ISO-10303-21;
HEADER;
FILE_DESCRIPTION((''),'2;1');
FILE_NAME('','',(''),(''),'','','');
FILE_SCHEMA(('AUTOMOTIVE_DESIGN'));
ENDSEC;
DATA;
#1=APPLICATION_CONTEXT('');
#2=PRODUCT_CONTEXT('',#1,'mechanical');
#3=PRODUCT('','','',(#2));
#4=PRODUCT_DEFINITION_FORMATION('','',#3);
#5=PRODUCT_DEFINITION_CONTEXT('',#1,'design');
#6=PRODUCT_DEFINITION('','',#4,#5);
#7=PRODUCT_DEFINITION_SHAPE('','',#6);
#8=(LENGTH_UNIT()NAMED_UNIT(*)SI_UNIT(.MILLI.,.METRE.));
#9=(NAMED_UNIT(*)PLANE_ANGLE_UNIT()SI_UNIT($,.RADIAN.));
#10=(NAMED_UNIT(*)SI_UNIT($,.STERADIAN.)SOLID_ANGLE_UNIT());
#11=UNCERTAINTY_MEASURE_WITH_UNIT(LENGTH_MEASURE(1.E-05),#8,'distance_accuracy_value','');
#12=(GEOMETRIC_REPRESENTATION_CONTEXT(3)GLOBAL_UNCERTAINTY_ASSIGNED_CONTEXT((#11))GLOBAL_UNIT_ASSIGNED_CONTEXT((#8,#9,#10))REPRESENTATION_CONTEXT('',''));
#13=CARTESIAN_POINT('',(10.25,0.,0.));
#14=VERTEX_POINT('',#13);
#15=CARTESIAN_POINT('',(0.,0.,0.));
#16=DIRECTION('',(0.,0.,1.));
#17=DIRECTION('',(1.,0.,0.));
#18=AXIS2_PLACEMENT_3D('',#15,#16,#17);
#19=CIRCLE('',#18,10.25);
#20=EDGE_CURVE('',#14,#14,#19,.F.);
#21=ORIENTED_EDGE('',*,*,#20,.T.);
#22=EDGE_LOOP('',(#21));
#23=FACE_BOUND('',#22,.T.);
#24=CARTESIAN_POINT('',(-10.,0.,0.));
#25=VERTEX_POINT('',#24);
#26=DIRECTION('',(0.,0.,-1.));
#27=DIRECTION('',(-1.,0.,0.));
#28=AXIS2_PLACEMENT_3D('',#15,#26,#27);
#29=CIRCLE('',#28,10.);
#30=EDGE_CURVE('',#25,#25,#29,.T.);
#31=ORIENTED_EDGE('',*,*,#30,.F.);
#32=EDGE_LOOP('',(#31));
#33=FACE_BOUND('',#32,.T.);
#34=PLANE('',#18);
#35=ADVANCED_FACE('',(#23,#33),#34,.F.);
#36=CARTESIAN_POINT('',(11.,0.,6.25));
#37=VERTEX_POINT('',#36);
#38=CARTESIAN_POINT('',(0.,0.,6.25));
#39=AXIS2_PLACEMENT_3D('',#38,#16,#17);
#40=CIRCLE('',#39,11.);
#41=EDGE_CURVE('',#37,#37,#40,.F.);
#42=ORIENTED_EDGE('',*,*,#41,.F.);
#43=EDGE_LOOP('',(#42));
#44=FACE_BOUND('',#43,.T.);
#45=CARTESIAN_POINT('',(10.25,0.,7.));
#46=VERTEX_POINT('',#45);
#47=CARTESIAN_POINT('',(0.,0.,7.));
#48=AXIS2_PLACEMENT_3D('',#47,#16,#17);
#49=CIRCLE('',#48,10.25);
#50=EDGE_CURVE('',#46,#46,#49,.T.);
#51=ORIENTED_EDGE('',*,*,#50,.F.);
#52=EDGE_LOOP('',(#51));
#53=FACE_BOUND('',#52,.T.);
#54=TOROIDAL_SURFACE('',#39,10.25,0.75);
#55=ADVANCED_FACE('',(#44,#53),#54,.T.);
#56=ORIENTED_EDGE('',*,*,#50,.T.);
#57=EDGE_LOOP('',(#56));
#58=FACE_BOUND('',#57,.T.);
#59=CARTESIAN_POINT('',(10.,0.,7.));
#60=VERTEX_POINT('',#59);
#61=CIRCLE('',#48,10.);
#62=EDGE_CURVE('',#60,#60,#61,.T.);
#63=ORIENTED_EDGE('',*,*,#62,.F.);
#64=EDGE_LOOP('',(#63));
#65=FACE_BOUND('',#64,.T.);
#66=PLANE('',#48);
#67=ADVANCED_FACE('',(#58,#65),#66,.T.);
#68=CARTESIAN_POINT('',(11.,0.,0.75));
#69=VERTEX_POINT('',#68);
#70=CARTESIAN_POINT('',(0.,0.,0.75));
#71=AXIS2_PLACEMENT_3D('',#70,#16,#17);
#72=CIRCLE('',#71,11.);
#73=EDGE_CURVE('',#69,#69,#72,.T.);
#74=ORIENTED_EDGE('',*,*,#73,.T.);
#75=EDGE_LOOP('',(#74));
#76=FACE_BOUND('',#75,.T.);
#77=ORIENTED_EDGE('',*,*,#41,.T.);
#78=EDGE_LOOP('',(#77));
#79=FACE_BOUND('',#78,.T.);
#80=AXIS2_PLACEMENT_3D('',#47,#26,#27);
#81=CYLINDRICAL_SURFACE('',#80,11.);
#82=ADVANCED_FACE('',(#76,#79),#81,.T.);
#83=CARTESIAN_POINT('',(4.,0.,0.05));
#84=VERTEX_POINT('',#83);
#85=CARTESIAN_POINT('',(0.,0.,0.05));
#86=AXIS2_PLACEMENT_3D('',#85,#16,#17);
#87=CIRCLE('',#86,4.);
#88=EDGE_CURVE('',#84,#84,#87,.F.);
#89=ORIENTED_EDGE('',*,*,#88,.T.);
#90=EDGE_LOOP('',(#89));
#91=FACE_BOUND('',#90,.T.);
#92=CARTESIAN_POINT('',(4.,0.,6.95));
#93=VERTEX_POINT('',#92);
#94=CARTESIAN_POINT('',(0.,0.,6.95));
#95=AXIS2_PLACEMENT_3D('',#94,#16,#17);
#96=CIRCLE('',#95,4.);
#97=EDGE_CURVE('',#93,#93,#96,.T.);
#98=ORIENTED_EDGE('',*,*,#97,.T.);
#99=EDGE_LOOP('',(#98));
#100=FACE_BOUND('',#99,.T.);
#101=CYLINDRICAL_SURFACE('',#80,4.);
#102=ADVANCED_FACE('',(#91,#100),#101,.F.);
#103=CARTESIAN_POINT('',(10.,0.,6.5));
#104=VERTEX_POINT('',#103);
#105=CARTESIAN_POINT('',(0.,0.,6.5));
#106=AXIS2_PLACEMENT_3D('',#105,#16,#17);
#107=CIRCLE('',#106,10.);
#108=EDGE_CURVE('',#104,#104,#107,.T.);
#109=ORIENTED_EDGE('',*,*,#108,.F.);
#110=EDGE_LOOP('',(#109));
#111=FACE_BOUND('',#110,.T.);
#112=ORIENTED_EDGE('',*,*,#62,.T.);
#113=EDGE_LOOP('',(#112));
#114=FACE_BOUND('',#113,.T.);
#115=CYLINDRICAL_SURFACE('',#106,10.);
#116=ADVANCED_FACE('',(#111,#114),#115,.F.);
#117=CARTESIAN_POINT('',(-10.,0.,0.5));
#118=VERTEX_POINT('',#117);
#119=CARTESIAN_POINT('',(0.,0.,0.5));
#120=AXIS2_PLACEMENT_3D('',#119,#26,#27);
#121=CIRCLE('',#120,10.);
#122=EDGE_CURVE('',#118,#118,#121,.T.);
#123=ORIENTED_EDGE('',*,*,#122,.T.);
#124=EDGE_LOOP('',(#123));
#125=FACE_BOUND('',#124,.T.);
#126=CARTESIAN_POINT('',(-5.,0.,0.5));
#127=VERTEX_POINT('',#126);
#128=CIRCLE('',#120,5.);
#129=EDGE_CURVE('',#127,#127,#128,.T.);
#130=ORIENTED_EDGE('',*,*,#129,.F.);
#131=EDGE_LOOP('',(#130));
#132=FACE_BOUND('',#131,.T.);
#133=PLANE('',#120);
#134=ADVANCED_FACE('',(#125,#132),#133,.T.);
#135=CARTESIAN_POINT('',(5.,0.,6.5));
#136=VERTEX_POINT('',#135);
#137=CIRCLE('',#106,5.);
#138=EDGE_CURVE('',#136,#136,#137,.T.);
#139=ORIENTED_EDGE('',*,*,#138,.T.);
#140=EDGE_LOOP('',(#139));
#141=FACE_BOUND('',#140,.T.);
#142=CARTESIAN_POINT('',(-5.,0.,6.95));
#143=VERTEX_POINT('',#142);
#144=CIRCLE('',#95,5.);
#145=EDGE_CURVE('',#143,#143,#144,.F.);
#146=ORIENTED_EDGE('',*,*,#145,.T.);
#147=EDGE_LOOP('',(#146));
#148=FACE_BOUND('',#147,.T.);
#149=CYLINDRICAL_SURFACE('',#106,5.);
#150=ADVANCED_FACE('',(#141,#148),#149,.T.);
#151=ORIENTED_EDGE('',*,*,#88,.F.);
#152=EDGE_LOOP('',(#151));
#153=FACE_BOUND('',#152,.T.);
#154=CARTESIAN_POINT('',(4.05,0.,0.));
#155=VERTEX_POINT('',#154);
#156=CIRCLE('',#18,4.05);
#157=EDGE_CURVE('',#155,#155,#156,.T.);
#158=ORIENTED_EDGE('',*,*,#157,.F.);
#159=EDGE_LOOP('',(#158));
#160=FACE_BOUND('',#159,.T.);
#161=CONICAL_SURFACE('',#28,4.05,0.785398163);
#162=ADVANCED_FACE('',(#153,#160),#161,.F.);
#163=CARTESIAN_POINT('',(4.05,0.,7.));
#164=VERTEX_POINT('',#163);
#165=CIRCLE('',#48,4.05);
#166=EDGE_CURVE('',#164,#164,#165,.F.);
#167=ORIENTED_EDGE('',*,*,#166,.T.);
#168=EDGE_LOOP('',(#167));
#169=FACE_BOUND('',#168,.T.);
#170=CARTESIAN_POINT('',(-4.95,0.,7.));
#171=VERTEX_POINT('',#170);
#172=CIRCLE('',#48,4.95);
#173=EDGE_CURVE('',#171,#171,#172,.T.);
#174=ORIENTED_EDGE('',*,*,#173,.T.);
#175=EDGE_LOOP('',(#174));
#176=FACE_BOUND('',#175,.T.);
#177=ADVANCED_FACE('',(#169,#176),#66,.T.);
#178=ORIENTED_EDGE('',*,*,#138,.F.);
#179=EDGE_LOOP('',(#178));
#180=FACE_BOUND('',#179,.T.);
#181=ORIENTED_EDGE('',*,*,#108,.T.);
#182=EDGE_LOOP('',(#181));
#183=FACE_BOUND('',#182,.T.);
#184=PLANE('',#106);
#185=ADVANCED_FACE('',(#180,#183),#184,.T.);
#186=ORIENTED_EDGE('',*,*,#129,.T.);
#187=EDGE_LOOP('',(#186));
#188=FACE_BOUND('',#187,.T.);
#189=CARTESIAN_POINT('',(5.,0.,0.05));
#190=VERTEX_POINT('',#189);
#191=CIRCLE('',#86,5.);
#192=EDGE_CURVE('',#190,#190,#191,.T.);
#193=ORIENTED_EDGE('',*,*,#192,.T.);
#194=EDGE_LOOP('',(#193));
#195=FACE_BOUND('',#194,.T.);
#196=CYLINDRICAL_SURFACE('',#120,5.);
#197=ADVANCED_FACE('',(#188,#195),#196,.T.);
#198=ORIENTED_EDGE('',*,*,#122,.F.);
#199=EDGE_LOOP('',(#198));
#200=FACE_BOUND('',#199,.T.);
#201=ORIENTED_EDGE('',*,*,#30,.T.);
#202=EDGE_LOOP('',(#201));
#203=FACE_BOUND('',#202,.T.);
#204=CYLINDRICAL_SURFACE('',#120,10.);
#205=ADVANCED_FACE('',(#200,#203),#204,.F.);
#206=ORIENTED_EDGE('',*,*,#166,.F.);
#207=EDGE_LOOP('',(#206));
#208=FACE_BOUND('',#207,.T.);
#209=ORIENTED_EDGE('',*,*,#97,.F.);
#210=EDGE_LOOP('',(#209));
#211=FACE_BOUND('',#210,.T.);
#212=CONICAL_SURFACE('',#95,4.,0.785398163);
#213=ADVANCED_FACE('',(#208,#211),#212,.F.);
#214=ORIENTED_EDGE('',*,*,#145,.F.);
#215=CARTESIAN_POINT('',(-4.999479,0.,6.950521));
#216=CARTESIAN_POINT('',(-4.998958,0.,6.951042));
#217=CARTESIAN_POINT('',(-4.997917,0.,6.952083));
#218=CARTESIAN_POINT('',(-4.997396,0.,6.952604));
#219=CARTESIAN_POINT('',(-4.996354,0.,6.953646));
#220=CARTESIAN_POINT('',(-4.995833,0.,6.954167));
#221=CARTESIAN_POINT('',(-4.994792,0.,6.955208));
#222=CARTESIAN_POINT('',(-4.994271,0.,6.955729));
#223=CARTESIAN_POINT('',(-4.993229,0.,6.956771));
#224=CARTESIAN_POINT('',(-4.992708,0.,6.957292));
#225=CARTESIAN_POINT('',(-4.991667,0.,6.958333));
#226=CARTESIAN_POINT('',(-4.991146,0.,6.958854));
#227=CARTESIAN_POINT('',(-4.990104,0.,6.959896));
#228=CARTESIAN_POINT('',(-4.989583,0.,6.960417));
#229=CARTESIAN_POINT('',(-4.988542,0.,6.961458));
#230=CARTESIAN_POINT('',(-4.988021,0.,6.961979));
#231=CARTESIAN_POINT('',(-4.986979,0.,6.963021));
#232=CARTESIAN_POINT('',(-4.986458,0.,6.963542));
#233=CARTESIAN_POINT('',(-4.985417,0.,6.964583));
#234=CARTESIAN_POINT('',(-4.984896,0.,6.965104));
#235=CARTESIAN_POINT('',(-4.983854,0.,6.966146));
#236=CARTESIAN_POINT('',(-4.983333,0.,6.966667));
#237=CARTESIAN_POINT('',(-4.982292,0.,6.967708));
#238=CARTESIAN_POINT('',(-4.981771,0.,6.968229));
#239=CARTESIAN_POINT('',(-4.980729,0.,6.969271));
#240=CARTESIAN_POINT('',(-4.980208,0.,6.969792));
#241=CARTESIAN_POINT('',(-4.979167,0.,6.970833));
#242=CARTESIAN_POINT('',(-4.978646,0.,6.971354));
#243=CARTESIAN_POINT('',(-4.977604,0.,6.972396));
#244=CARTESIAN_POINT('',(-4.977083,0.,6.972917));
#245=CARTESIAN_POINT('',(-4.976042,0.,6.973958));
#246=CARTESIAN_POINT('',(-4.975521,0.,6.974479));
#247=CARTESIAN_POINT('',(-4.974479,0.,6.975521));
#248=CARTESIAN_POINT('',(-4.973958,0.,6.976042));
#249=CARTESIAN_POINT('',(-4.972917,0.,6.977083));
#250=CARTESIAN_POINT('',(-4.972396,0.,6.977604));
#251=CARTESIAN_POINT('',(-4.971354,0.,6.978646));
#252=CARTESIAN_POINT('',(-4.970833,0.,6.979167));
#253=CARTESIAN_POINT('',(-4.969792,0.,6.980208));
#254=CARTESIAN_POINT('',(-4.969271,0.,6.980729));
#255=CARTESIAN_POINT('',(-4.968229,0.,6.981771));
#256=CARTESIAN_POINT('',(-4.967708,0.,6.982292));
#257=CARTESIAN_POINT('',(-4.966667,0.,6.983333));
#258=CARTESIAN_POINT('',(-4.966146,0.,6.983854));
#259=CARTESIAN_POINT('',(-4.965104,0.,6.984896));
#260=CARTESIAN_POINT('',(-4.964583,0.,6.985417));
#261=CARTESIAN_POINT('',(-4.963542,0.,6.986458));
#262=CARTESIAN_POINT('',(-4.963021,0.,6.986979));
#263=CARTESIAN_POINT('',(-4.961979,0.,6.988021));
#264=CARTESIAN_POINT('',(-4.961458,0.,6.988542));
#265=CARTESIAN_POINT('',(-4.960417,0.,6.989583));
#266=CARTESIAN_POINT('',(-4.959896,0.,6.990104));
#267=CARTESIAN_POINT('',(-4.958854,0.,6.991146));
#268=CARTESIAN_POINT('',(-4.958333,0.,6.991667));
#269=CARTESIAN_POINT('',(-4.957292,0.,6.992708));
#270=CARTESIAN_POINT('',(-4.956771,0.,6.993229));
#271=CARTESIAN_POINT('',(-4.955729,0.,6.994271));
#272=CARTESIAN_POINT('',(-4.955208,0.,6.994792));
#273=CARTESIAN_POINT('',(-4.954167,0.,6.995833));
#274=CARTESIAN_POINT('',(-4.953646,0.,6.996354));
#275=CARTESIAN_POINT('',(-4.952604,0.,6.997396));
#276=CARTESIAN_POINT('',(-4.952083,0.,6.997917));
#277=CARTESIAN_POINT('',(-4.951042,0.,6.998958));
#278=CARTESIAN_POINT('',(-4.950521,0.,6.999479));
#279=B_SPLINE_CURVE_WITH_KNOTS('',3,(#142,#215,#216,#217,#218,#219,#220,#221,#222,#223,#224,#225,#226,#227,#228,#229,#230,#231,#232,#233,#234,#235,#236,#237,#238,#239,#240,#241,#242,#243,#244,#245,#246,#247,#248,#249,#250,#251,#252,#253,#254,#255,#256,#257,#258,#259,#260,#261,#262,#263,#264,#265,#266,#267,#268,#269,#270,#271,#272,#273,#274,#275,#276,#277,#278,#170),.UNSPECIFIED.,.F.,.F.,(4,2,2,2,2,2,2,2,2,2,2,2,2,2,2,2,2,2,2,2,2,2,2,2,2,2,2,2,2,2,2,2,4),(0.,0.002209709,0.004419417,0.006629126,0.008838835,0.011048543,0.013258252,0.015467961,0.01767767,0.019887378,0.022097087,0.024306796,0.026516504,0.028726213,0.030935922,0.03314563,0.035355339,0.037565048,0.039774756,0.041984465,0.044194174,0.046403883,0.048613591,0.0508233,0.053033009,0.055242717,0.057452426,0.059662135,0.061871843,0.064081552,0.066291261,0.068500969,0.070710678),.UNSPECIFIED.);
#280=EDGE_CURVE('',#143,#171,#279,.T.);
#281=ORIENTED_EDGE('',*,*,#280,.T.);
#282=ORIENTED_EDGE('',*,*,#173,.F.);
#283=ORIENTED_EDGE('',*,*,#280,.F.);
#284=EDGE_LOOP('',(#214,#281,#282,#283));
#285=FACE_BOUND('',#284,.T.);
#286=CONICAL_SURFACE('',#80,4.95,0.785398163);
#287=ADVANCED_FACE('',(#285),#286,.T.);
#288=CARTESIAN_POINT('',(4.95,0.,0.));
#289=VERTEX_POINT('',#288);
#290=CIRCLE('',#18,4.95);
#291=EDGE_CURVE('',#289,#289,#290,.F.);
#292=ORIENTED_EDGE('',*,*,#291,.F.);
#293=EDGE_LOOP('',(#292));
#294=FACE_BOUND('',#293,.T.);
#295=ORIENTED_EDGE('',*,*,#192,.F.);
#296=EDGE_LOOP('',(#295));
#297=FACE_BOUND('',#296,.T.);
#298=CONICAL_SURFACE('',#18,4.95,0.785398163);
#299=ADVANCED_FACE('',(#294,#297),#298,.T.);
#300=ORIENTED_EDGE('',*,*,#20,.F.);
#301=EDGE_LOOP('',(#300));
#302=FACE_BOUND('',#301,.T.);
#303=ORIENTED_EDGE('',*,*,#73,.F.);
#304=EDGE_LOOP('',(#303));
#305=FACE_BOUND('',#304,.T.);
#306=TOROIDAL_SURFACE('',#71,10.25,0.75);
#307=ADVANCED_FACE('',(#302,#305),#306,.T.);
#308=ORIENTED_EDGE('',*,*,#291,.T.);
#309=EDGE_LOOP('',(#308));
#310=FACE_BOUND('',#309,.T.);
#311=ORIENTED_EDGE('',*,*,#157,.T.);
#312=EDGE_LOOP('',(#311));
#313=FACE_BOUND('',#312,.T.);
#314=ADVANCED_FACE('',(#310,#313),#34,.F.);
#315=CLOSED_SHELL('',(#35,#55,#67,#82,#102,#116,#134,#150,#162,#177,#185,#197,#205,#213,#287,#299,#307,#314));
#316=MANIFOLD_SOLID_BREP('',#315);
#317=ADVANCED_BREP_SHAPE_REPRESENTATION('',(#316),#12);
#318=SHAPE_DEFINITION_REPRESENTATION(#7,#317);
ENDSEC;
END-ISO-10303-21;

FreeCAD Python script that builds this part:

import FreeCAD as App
import Part
import Sketcher

V = App.Vector


def edges_at(feature, points):
    """Names of the edges that pass closest to the given points."""
    edges = feature.Shape.Edges
    near = lambda p: min(range(len(edges)), key=lambda i: edges[i].distToShape(Part.Vertex(*p))[0])
    return sorted({f"Edge{near(p) + 1}" for p in points})

doc = App.newDocument("Part")
body = doc.addObject("PartDesign::Body", "Body")

sketch1 = body.newObject("Sketcher::SketchObject", "Sketch")
sketch1.AttachmentSupport = (doc.getObject("XY_Plane"), [""])
sketch1.MapMode = "FlatFace"
sketch1.addGeometry(Part.Circle(V(0, 0, 0), V(0, 0, 1), 11), False)
sketch1.addGeometry(Part.Circle(V(0, 0, 0), V(0, 0, 1), 4), False)
sketch1.addConstraint(Sketcher.Constraint("Coincident", 0, 3, -1, 1))
sketch1.addConstraint(Sketcher.Constraint("Coincident", 1, 3, -1, 1))
sketch1.addConstraint(Sketcher.Constraint("Diameter", 0, 22.0))
sketch1.addConstraint(Sketcher.Constraint("Diameter", 1, 8.0))
pad1 = body.newObject("PartDesign::Pad", "Pad")
pad1.Profile = sketch1
pad1.Length = 7

sketch2 = body.newObject("Sketcher::SketchObject", "Sketch001")
sketch2.AttachmentSupport = (doc.getObject("XY_Plane"), [""])
sketch2.MapMode = "FlatFace"
sketch2.AttachmentOffset = App.Placement(V(0, 0, 7), App.Rotation())
sketch2.addGeometry(Part.Circle(V(0, 0, 0), V(0, 0, 1), 10), False)
sketch2.addGeometry(Part.Circle(V(0, 0, 0), V(0, 0, 1), 5), False)
sketch2.addConstraint(Sketcher.Constraint("Coincident", 0, 3, -1, 1))
sketch2.addConstraint(Sketcher.Constraint("Coincident", 1, 3, -1, 1))
sketch2.addConstraint(Sketcher.Constraint("Diameter", 0, 20.0))
sketch2.addConstraint(Sketcher.Constraint("Diameter", 1, 10.0))
pocket1 = body.newObject("PartDesign::Pocket", "Pocket")
pocket1.Profile = sketch2
pocket1.Length = 0.5

sketch3 = body.newObject("Sketcher::SketchObject", "Sketch002")
sketch3.AttachmentSupport = (doc.getObject("XY_Plane"), [""])
sketch3.MapMode = "FlatFace"
sketch3.AttachmentOffset = App.Placement(V(0, 0, 0.5), App.Rotation())
sketch3.addGeometry(Part.Circle(V(0, 0, 0), V(0, 0, 1), 10), False)
sketch3.addGeometry(Part.Circle(V(0, 0, 0), V(0, 0, 1), 5), False)
sketch3.addConstraint(Sketcher.Constraint("Coincident", 0, 3, -1, 1))
sketch3.addConstraint(Sketcher.Constraint("Coincident", 1, 3, -1, 1))
sketch3.addConstraint(Sketcher.Constraint("Diameter", 0, 20.0))
sketch3.addConstraint(Sketcher.Constraint("Diameter", 1, 10.0))
pocket2 = body.newObject("PartDesign::Pocket", "Pocket001")
pocket2.Profile = sketch3
pocket2.Length = 0.5
doc.recompute()

fillet = body.newObject("PartDesign::Fillet", "Fillet")
fillet.Base = (pocket2, edges_at(pocket2, [(-11, 0, 0), (-11, 0, 7)]))
fillet.Radius = 0.75
doc.recompute()

chamfer = body.newObject("PartDesign::Chamfer", "Chamfer")
chamfer.Base = (fillet, edges_at(fillet, [
    (-5, 0, 7),
    (-5, 0, 0),
    (-4, 0, 0),
    (-4, 0, 7),
]))
chamfer.Size = 0.05

doc.recompute()
